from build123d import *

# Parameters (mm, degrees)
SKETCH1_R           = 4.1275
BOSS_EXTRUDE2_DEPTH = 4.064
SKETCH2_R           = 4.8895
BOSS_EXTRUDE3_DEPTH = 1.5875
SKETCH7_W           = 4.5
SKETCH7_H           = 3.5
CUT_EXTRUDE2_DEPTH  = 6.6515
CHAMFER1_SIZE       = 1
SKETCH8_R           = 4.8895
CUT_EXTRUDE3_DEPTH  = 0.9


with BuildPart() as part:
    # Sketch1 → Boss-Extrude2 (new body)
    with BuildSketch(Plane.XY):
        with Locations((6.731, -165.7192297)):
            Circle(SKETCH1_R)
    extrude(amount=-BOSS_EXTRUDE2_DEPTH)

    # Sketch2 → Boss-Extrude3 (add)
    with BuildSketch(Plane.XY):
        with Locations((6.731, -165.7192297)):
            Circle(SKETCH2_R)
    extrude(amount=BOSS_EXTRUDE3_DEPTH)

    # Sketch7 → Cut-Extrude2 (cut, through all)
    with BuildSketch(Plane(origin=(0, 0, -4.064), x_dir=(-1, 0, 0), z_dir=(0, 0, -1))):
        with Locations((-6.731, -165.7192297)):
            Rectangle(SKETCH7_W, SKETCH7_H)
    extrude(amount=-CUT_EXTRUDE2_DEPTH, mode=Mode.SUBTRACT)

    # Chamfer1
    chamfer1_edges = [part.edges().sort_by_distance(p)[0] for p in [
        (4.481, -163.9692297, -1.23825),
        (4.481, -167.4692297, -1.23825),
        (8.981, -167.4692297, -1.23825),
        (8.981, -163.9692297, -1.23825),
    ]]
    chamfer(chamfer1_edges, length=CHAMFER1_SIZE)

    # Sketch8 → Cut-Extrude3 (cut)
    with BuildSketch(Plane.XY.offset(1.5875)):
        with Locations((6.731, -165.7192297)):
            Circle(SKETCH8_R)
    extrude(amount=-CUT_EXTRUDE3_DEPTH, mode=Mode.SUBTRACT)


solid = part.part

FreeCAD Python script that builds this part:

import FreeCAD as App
import Part
import Sketcher
from FreeCAD import Vector
Q = App.Units.Quantity


def edges_at(feature, points):
    """Names of the edges that pass closest to the given points."""
    edges = feature.Shape.Edges
    near = lambda p: min(range(len(edges)), key=lambda i: edges[i].distToShape(Part.Vertex(*p))[0])
    return sorted({f"Edge{near(p) + 1}" for p in points})


def add_polygon(sketch, points):
    """Adds a closed chain of lines whose ends are joined by coincident constraints."""
    first, n = sketch.GeometryCount, len(points)
    for a, b in zip(points, points[1:] + points[:1]):
        sketch.addGeometry(Part.LineSegment(App.Vector(*a, 0), App.Vector(*b, 0)), False)
    for i in range(n):
        sketch.addConstraint(Sketcher.Constraint("Coincident", first + i, 2, first + (i + 1) % n, 1))

doc = App.newDocument("Part")
body = doc.addObject("PartDesign::Body", "Body")

sketch1 = body.newObject("Sketcher::SketchObject", "Sketch")
sketch1.AttachmentSupport = (doc.getObject("XY_Plane"), [""])
sketch1.MapMode = "FlatFace"
sketch1.addGeometry(Part.Circle(Vector(6.7, -165.7, 0), Vector(0, 0, 1), 4.1), False)
sketch1.addConstraint(Sketcher.Constraint("Diameter", 0, Q("8.255 mm")))
sketch1.addConstraint(Sketcher.Constraint("DistanceX", -1, 1, 0, 3, Q("6.731 mm")))
sketch1.addConstraint(Sketcher.Constraint("DistanceY", 0, 3, -1, 1, Q("165.71923 mm")))
pad1 = body.newObject("PartDesign::Pad", "Pad")
pad1.Profile = sketch1
pad1.Length = 4.064
pad1.Reversed = True

sketch2 = body.newObject("Sketcher::SketchObject", "Sketch001")
sketch2.AttachmentSupport = (doc.getObject("XY_Plane"), [""])
sketch2.MapMode = "FlatFace"
sketch2.addGeometry(Part.Circle(Vector(6.7, -165.7, 0), Vector(0, 0, 1), 4.9), False)
sketch2.addConstraint(Sketcher.Constraint("Diameter", 0, Q("9.779 mm")))
sketch2.addConstraint(Sketcher.Constraint("DistanceX", -1, 1, 0, 3, Q("6.731 mm")))
sketch2.addConstraint(Sketcher.Constraint("DistanceY", 0, 3, -1, 1, Q("165.71923 mm")))
pad2 = body.newObject("PartDesign::Pad", "Pad001")
pad2.Profile = sketch2
pad2.Length = 1.5875

sketch3 = body.newObject("Sketcher::SketchObject", "Sketch002")
sketch3.AttachmentSupport = (doc.getObject("XY_Plane"), [""])
sketch3.MapMode = "FlatFace"
sketch3.AttachmentOffset = App.Placement(Vector(0, 0, -4.064), App.Rotation())
add_polygon(sketch3, [(9, -164), (9, -167.5), (4.5, -167.5), (4.5, -164)])
sketch3.addConstraint(Sketcher.Constraint("Vertical", 0))
sketch3.addConstraint(Sketcher.Constraint("Horizontal", 1))
sketch3.addConstraint(Sketcher.Constraint("Vertical", 2))
sketch3.addConstraint(Sketcher.Constraint("Horizontal", 3))
sketch3.addConstraint(Sketcher.Constraint("DistanceX", 1, 2, 1, 1, Q("4.5 mm")))
sketch3.addConstraint(Sketcher.Constraint("DistanceY", 0, 2, 0, 1, Q("3.5 mm")))
sketch3.addConstraint(Sketcher.Constraint("DistanceX", -1, 1, 0, 2, Q("8.981 mm")))
sketch3.addConstraint(Sketcher.Constraint("DistanceY", 0, 2, -1, 1, Q("167.46923 mm")))
pocket1 = body.newObject("PartDesign::Pocket", "Pocket")
pocket1.Profile = sketch3
pocket1.Type = "ThroughAll"
pocket1.Reversed = True
doc.recompute()

chamfer = body.newObject("PartDesign::Chamfer", "Chamfer")
chamfer.Base = (pocket1, edges_at(pocket1, [
    (4.481, -163.969, -1.238),
    (4.481, -167.469, -1.238),
    (8.981, -167.469, -1.238),
    (8.981, -163.969, -1.238),
]))
chamfer.Size = 1

sketch4 = body.newObject("Sketcher::SketchObject", "Sketch003")
sketch4.AttachmentSupport = (doc.getObject("XY_Plane"), [""])
sketch4.MapMode = "FlatFace"
sketch4.AttachmentOffset = App.Placement(Vector(0, 0, 1.5875), App.Rotation())
sketch4.addGeometry(Part.Circle(Vector(6.7, -165.7, 0), Vector(0, 0, 1), 4.9), False)
sketch4.addConstraint(Sketcher.Constraint("Diameter", 0, Q("9.779 mm")))
sketch4.addConstraint(Sketcher.Constraint("DistanceX", -1, 1, 0, 3, Q("6.731 mm")))
sketch4.addConstraint(Sketcher.Constraint("DistanceY", 0, 3, -1, 1, Q("165.71923 mm")))
pocket2 = body.newObject("PartDesign::Pocket", "Pocket001")
pocket2.Profile = sketch4
pocket2.Length = 0.9

doc.recompute()
